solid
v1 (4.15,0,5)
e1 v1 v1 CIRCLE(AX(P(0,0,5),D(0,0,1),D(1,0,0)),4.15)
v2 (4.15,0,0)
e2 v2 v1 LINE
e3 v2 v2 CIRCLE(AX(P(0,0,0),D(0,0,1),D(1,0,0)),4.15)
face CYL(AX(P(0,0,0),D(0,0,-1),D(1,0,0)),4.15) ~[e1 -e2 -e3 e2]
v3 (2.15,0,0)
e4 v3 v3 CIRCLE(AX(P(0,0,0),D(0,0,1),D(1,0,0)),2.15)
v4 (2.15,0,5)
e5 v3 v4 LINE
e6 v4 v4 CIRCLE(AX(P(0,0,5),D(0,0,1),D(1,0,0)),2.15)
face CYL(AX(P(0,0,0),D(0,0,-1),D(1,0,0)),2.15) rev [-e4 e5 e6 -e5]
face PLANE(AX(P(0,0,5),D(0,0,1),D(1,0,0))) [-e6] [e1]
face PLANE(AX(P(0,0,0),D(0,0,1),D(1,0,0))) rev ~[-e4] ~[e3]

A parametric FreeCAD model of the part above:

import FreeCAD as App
import Part
import Sketcher

V = App.Vector

doc = App.newDocument("Part")
body = doc.addObject("PartDesign::Body", "Body")

sketch1 = body.newObject("Sketcher::SketchObject", "Sketch")
sketch1.AttachmentSupport = (doc.getObject("XY_Plane"), [""])
sketch1.MapMode = "FlatFace"
sketch1.addGeometry([
    Part.Circle(V(0, 0, 0), V(0, 0, 1), 4.15),
    Part.Circle(V(0, 0, 0), V(0, 0, 1), 2.15),
], False)
sketch1.addConstraint([
    Sketcher.Constraint("Coincident", 0, 3, -1, 1),
    Sketcher.Constraint("Coincident", 1, 3, -1, 1),
    Sketcher.Constraint("Diameter", 1, 4.3),
    Sketcher.Constraint("Diameter", 0, 8.3),
])
pad1 = body.newObject("PartDesign::Pad", "Pad")
pad1.Profile = sketch1
pad1.Length = 5

doc.recompute()
